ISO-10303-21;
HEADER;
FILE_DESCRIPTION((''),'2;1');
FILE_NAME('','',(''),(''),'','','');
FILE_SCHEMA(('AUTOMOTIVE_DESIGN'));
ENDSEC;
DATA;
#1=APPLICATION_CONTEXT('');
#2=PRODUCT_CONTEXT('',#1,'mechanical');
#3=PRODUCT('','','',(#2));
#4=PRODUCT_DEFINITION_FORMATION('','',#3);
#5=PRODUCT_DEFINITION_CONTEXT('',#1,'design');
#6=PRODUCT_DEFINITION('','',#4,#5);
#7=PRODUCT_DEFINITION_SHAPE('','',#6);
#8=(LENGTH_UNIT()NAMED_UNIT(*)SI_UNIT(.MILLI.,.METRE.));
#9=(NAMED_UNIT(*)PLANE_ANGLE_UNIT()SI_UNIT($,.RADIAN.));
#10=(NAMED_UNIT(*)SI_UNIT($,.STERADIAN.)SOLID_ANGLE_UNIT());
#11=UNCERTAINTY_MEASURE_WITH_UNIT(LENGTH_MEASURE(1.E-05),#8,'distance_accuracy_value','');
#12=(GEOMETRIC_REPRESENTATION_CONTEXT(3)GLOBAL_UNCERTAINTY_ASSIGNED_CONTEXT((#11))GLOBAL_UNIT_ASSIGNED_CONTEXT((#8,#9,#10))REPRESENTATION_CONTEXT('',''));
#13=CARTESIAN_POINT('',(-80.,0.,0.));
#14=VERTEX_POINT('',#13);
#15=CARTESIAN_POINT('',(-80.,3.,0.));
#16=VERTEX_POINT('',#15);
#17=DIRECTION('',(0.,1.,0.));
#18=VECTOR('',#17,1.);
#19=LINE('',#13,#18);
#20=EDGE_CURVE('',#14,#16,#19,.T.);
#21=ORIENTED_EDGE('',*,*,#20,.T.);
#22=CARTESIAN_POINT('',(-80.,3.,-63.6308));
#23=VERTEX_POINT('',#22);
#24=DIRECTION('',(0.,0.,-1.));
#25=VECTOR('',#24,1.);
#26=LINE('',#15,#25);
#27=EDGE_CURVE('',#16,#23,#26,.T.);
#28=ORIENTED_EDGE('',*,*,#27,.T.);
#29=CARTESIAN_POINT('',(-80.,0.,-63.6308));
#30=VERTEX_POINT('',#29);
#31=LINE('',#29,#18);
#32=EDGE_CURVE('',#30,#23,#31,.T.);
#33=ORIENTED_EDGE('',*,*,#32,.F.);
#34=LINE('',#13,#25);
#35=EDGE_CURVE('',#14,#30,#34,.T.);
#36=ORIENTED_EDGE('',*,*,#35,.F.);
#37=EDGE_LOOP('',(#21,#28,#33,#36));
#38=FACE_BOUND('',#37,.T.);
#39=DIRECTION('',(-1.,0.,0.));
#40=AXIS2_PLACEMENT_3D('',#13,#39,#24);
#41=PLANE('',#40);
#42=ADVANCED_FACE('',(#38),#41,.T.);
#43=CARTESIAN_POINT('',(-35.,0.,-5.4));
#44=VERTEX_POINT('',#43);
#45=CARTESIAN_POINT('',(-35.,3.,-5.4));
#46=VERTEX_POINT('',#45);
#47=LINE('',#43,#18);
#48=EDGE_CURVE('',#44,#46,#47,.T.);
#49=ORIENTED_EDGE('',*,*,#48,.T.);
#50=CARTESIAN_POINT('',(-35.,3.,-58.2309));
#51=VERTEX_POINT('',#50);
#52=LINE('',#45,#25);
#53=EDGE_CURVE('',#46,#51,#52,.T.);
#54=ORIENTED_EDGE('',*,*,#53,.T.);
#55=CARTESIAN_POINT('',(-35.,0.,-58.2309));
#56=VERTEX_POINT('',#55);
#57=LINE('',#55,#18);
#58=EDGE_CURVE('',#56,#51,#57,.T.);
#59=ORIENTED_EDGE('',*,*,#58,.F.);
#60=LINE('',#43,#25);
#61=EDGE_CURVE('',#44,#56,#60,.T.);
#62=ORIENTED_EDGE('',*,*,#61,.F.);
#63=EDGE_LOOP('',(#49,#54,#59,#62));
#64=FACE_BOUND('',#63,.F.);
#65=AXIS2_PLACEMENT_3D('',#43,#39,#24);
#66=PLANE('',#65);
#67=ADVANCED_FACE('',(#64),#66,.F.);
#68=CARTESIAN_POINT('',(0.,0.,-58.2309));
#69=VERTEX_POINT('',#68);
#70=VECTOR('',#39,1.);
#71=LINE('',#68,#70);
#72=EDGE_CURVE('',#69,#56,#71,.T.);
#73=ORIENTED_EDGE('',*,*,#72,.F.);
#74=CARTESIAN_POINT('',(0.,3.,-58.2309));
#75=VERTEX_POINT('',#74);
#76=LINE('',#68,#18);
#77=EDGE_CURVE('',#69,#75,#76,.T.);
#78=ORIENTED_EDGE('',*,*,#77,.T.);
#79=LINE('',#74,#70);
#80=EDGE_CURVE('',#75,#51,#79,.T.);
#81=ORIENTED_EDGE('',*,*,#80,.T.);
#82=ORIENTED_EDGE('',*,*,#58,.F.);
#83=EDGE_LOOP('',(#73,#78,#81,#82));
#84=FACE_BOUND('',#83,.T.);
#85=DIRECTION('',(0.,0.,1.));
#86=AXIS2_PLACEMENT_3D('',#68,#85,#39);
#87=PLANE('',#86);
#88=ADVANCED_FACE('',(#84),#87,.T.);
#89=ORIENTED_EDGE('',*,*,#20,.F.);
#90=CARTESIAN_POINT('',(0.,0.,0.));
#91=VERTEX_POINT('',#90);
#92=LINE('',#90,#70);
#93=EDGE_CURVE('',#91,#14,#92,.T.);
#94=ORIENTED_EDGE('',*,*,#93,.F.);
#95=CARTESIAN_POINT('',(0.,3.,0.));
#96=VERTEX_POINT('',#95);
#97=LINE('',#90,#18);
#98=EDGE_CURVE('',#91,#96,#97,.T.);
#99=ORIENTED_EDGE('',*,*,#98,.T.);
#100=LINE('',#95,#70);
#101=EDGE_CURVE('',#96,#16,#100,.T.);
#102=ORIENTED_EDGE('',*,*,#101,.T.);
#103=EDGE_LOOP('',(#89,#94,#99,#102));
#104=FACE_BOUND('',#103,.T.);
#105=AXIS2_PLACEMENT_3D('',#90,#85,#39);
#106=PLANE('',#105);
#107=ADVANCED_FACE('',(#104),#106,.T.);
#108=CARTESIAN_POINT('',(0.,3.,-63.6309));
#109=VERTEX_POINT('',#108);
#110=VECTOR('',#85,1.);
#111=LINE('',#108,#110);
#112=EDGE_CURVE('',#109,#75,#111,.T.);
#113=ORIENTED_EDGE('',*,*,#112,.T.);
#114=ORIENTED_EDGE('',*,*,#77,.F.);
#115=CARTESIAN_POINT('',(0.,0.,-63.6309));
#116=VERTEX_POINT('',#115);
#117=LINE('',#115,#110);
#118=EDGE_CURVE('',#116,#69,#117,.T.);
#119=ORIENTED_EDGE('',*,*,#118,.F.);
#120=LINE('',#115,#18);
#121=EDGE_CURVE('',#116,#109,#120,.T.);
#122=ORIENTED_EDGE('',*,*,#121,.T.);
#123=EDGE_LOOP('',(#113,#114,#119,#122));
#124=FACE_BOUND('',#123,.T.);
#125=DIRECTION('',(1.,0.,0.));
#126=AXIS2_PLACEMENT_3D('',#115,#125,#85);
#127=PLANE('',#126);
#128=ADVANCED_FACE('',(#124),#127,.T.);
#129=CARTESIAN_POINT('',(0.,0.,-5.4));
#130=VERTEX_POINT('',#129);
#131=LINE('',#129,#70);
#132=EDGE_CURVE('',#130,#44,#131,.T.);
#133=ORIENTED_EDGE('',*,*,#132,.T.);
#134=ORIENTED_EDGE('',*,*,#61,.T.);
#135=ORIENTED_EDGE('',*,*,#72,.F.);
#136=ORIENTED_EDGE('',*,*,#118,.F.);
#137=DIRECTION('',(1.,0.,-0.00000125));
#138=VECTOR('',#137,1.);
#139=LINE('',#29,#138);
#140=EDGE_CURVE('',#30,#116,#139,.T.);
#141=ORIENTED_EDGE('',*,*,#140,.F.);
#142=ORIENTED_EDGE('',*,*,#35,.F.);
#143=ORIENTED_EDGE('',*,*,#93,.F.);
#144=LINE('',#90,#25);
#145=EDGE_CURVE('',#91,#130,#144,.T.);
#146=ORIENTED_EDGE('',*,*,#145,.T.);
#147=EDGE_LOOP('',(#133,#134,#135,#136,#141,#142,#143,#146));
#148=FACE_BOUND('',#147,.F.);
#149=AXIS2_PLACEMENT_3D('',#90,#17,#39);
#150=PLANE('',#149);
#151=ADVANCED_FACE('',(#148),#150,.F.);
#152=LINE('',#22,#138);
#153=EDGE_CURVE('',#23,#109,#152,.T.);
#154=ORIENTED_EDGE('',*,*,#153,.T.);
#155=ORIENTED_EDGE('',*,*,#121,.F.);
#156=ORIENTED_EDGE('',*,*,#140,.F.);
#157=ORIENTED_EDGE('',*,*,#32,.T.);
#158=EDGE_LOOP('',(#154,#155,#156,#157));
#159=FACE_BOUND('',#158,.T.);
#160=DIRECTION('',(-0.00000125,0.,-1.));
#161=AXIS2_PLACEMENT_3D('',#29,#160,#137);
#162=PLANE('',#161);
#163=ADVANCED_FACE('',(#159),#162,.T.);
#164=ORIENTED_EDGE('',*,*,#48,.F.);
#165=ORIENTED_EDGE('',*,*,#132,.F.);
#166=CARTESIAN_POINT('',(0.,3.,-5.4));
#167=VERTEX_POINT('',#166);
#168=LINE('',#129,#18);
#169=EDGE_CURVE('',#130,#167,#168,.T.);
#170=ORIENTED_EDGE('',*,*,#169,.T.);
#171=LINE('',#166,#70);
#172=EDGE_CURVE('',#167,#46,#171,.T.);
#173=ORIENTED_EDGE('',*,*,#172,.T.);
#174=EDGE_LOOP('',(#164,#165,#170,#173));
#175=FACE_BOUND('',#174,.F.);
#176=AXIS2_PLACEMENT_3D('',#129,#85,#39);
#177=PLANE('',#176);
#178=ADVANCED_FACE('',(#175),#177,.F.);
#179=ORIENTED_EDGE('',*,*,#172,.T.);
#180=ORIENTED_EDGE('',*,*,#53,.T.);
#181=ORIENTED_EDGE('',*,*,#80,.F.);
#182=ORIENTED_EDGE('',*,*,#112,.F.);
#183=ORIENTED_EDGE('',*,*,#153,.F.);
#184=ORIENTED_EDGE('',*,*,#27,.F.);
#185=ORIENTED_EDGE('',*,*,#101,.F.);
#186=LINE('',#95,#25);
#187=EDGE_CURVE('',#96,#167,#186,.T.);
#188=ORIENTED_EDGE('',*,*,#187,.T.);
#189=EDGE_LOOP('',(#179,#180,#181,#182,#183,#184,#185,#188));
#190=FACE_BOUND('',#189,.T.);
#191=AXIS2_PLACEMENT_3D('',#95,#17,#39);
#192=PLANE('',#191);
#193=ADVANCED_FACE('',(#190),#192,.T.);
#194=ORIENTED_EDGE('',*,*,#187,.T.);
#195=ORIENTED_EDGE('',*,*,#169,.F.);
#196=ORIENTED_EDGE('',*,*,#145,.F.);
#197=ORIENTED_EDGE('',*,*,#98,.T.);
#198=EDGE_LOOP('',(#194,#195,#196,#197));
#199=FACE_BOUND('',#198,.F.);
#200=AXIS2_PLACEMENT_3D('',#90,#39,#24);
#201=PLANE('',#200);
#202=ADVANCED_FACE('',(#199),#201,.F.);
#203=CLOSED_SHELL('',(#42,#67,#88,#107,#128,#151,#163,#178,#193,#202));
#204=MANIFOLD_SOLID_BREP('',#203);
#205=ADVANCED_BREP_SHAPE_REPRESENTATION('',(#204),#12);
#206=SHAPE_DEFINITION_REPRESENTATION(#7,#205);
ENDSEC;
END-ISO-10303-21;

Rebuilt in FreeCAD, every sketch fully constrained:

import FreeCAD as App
import Part
import Sketcher
from FreeCAD import Vector


def add_polygon(sketch, points):
    """Adds a closed chain of lines whose ends are joined by coincident constraints."""
    first, n = sketch.GeometryCount, len(points)
    for a, b in zip(points, points[1:] + points[:1]):
        sketch.addGeometry(Part.LineSegment(App.Vector(*a, 0), App.Vector(*b, 0)), False)
    for i in range(n):
        sketch.addConstraint(Sketcher.Constraint("Coincident", first + i, 2, first + (i + 1) % n, 1))

doc = App.newDocument("Part")
body = doc.addObject("PartDesign::Body", "Body")

sketch1 = body.newObject("Sketcher::SketchObject", "Sketch")
sketch1.AttachmentSupport = (doc.getObject("XZ_Plane"), [""])
sketch1.MapMode = "FlatFace"
add_polygon(sketch1, [(-80, 0), (0, 0), (0, -5.4), (-35, -5.4), (-35, -58.2309), (0, -58.2309), (0, -63.6309), (-80, -63.6308)])
sketch1.addConstraint(Sketcher.Constraint("Horizontal", 0))
sketch1.addConstraint(Sketcher.Constraint("Vertical", 1))
sketch1.addConstraint(Sketcher.Constraint("Horizontal", 2))
sketch1.addConstraint(Sketcher.Constraint("Vertical", 3))
sketch1.addConstraint(Sketcher.Constraint("Horizontal", 4))
sketch1.addConstraint(Sketcher.Constraint("Vertical", 5))
sketch1.addConstraint(Sketcher.Constraint("Horizontal", 6))
sketch1.addConstraint(Sketcher.Constraint("Vertical", 7))
sketch1.addConstraint(Sketcher.Constraint("Coincident", 0, 2, -1, 1))
sketch1.addConstraint(Sketcher.Constraint("PointOnObject", 4, 2, -2))
sketch1.addConstraint(Sketcher.Constraint("Equal", 1, 5))
sketch1.addConstraint(Sketcher.Constraint("DistanceX", 0, 1, 0, 2, 80.0))
sketch1.addConstraint(Sketcher.Constraint("DistanceX", 2, 2, 2, 1, 35.0))
sketch1.addConstraint(Sketcher.Constraint("DistanceY", 1, 2, 1, 1, 5.4))
sketch1.addConstraint(Sketcher.Constraint("DistanceY", 7, 1, 7, 2, 63.6308))
pad1 = body.newObject("PartDesign::Pad", "Pad")
pad1.Profile = sketch1
pad1.Length = 3
pad1.Reversed = True

doc.recompute()
